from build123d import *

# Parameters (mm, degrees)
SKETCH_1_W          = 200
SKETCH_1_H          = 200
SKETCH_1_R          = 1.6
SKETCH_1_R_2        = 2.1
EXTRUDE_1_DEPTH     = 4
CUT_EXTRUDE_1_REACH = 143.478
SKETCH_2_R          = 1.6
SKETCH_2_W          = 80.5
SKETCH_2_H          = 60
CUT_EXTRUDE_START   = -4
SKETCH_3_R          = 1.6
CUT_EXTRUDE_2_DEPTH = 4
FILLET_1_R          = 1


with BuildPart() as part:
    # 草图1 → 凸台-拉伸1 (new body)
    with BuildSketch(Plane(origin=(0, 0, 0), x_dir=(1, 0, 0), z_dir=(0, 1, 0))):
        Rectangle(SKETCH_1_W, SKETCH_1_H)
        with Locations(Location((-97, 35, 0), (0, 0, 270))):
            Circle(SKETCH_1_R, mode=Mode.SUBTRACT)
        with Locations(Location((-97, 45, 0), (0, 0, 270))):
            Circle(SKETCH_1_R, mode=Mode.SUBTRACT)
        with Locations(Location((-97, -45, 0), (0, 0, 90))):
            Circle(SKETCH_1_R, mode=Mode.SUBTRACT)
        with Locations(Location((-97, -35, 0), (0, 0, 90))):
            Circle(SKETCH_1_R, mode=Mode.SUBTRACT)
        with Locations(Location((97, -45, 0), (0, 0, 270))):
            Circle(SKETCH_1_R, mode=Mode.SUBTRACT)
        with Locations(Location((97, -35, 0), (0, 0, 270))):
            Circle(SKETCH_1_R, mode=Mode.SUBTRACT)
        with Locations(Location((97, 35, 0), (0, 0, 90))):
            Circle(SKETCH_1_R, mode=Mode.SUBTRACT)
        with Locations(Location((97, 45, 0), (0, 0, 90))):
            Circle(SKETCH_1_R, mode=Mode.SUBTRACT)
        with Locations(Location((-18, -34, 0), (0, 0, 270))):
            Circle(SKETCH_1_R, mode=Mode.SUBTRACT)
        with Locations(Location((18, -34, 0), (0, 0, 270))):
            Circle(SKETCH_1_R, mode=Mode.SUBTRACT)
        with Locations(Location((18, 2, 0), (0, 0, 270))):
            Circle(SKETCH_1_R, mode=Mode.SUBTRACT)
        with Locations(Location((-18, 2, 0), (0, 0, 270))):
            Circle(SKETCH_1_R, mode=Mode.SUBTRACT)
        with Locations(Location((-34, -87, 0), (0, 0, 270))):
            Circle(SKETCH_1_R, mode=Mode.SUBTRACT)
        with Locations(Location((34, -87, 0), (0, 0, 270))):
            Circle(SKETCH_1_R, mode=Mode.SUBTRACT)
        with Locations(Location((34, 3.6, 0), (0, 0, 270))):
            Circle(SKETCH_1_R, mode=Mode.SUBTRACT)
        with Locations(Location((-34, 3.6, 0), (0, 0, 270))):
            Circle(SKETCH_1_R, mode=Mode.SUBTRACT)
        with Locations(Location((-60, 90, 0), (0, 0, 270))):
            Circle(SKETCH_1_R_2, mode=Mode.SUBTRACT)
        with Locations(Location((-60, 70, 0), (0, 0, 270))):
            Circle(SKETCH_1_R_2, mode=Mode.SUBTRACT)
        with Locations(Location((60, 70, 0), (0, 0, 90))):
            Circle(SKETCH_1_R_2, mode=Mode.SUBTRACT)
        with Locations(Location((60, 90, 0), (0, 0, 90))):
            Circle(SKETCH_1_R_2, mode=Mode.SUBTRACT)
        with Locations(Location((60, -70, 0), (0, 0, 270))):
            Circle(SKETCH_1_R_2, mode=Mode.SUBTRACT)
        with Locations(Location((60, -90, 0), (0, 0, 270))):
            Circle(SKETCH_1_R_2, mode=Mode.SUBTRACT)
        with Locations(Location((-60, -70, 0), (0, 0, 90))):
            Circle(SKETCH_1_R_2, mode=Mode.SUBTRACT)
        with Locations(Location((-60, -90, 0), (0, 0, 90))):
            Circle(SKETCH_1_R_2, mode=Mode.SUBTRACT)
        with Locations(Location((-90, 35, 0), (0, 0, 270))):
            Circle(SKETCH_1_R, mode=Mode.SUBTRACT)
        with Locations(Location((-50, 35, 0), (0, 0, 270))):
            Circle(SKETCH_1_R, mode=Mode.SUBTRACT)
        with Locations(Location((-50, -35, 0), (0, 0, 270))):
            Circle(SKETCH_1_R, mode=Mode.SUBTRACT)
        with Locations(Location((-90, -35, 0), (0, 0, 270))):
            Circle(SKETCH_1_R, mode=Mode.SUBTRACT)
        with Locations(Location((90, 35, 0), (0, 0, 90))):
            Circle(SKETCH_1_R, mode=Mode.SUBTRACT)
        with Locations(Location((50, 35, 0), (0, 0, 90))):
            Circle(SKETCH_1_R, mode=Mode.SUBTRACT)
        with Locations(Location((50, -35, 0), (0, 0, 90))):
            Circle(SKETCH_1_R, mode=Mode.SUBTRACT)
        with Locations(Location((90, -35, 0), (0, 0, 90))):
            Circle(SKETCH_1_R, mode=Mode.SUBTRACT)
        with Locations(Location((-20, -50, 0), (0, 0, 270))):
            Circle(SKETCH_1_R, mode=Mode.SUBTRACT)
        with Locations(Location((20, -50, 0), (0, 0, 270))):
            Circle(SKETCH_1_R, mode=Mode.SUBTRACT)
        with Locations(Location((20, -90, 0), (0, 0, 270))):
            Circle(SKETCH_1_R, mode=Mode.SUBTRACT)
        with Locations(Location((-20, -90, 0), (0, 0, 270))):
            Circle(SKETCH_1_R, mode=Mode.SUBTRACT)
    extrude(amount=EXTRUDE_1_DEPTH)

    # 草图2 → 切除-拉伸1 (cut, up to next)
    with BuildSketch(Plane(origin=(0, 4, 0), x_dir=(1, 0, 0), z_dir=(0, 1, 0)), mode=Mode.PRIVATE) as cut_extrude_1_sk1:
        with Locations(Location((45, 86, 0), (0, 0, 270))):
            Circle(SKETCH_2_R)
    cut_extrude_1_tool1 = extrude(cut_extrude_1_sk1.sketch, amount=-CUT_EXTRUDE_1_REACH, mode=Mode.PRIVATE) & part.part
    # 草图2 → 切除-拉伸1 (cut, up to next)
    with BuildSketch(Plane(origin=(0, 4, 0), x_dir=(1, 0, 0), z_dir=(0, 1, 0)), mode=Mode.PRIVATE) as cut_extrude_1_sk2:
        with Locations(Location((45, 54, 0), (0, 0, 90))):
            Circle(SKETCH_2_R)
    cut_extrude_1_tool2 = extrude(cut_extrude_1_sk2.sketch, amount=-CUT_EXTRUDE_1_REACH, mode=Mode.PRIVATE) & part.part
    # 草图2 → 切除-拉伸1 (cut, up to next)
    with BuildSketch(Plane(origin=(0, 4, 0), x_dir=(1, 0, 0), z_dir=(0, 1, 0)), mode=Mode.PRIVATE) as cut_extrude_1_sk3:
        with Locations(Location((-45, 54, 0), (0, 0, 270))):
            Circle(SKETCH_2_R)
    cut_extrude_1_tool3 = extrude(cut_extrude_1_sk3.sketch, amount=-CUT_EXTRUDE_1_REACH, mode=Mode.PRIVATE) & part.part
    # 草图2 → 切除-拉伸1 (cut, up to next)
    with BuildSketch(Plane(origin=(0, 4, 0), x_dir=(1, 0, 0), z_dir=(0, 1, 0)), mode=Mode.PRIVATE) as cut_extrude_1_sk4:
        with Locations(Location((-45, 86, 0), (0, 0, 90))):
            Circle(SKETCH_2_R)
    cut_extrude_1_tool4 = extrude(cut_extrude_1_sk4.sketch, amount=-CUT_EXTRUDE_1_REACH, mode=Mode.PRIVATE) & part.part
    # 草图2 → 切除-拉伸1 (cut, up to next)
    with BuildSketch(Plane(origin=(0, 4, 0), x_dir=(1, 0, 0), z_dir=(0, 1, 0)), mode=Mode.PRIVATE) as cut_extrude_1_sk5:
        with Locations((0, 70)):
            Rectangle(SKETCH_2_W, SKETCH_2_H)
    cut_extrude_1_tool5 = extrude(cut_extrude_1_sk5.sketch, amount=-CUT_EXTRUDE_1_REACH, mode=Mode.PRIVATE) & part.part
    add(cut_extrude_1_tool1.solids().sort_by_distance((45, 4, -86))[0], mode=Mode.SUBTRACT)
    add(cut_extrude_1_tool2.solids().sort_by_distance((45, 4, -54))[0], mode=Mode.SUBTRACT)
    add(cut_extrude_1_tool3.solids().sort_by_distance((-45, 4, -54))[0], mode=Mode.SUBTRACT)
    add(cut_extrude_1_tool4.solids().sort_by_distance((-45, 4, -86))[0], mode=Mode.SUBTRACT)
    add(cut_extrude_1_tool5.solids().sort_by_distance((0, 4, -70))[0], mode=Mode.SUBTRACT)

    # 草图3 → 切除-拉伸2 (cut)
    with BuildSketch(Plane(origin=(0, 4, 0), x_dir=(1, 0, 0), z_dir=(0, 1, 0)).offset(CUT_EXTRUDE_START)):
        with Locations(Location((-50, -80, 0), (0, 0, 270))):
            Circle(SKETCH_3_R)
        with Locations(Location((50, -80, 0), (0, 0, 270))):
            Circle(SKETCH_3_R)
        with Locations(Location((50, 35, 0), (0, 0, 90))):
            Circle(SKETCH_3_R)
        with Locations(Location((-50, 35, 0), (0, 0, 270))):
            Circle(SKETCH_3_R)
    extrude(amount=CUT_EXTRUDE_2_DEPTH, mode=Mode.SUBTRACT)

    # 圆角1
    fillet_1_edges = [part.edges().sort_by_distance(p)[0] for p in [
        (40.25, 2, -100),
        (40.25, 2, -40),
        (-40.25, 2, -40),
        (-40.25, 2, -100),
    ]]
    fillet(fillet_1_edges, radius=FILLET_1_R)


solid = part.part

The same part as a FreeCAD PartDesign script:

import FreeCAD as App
import Part
import Sketcher
Q = App.Units.Quantity


def edges_at(feature, points):
    """Names of the edges that pass closest to the given points."""
    edges = feature.Shape.Edges
    near = lambda p: min(range(len(edges)), key=lambda i: edges[i].distToShape(Part.Vertex(*p))[0])
    return sorted({f"Edge{near(p) + 1}" for p in points})


def add_polygon(sketch, points):
    """Adds a closed chain of lines whose ends are joined by coincident constraints."""
    first, n = sketch.GeometryCount, len(points)
    for a, b in zip(points, points[1:] + points[:1]):
        sketch.addGeometry(Part.LineSegment(App.Vector(*a, 0), App.Vector(*b, 0)), False)
    for i in range(n):
        sketch.addConstraint(Sketcher.Constraint("Coincident", first + i, 2, first + (i + 1) % n, 1))

doc = App.newDocument("Part")
params = doc.addObject("Spreadsheet::Sheet", "Params")
for row, (alias, value) in enumerate([
    ("sketch1_diameter", "4.2 mm"),
    ("sketch1_diameter2", "3.2 mm"),
    ("sketch1_width", "200 mm"),
    ("pad1_length", "4 mm"),
    ("sketch2_diameter", "3.2 mm"),
    ("sketch3_diameter", "3.2 mm"),
    ("sketch4_diameter", "3.2 mm"),
    ("sketch5_diameter", "3.2 mm"),
    ("sketch6_height", "60 mm"),
    ("sketch6_width", "80.5 mm"),
    ("sketch7_diameter", "3.2 mm"),
    ("pocket6_length", "4 mm"),
    ("fillet_radius", "1 mm"),
], start=1):
    params.set(f"A{row}", alias)
    params.set(f"B{row}", "=" + value)
    params.setAlias(f"B{row}", alias)

body = doc.addObject("PartDesign::Body", "Body")

# Sketch on XZ plane
sketch1 = doc.addObject("Sketcher::SketchObject", "Sketch")
body.addObject(sketch1)
sketch1.AttachmentSupport = (doc.XZ_Plane, [""])
sketch1.MapMode = "FlatFace"
add_polygon(sketch1, [(-100, -100), (-100, 100), (100, 100), (100, -100)])  # lines 0-3
sketch1.addGeometry(Part.Circle(App.Vector(-60, 90, 0), App.Vector(0, 0, 1), 2.1), False)  # 4
sketch1.addGeometry(Part.Circle(App.Vector(-60, 70, 0), App.Vector(0, 0, 1), 2.1), False)  # 5
sketch1.addGeometry(Part.Circle(App.Vector(-34, 87, 0), App.Vector(0, 0, 1), 1.6), False)  # 6
sketch1.addGeometry(Part.Circle(App.Vector(-20, 90, 0), App.Vector(0, 0, 1), 1.6), False)  # 7
sketch1.addGeometry(Part.Circle(App.Vector(-20, 50, 0), App.Vector(0, 0, 1), 1.6), False)  # 8
sketch1.addGeometry(Part.Circle(App.Vector(-97, 45, 0), App.Vector(0, 0, 1), 1.6), False)  # 9
sketch1.addGeometry(Part.Circle(App.Vector(-97, 35, 0), App.Vector(0, 0, 1), 1.6), False)  # 10
sketch1.addGeometry(Part.Circle(App.Vector(-90, 35, 0), App.Vector(0, 0, 1), 1.6), False)  # 11
sketch1.addGeometry(Part.Circle(App.Vector(-50, 35, 0), App.Vector(0, 0, 1), 1.6), False)  # 12
sketch1.addGeometry(Part.Circle(App.Vector(-18, 34, 0), App.Vector(0, 0, 1), 1.6), False)  # 13
sketch1.addGeometry(Part.Circle(App.Vector(20, 90, 0), App.Vector(0, 0, 1), 1.6), False)  # 14
sketch1.addGeometry(Part.Circle(App.Vector(34, 87, 0), App.Vector(0, 0, 1), 1.6), False)  # 15
sketch1.addGeometry(Part.Circle(App.Vector(20, 50, 0), App.Vector(0, 0, 1), 1.6), False)  # 16
sketch1.addGeometry(Part.Circle(App.Vector(60, 90, 0), App.Vector(0, 0, 1), 2.1), False)  # 17
sketch1.addGeometry(Part.Circle(App.Vector(60, 70, 0), App.Vector(0, 0, 1), 2.1), False)  # 18
sketch1.addGeometry(Part.Circle(App.Vector(18, 34, 0), App.Vector(0, 0, 1), 1.6), False)  # 19
sketch1.addGeometry(Part.Circle(App.Vector(50, 35, 0), App.Vector(0, 0, 1), 1.6), False)  # 20
sketch1.addGeometry(Part.Circle(App.Vector(97, 45, 0), App.Vector(0, 0, 1), 1.6), False)  # 21
sketch1.addGeometry(Part.Circle(App.Vector(90, 35, 0), App.Vector(0, 0, 1), 1.6), False)  # 22
sketch1.addGeometry(Part.Circle(App.Vector(97, 35, 0), App.Vector(0, 0, 1), 1.6), False)  # 23
sketch1.addGeometry(Part.Circle(App.Vector(-97, -35, 0), App.Vector(0, 0, 1), 1.6), False)  # 24
sketch1.addGeometry(Part.Circle(App.Vector(-90, -35, 0), App.Vector(0, 0, 1), 1.6), False)  # 25
sketch1.addGeometry(Part.Circle(App.Vector(-97, -45, 0), App.Vector(0, 0, 1), 1.6), False)  # 26
sketch1.addGeometry(Part.Circle(App.Vector(-50, -35, 0), App.Vector(0, 0, 1), 1.6), False)  # 27
sketch1.addGeometry(Part.Circle(App.Vector(-34, -3.6, 0), App.Vector(0, 0, 1), 1.6), False)  # 28
sketch1.addGeometry(Part.Circle(App.Vector(-18, -2, 0), App.Vector(0, 0, 1), 1.6), False)  # 29
sketch1.addGeometry(Part.Circle(App.Vector(-60, -70, 0), App.Vector(0, 0, 1), 2.1), False)  # 30
sketch1.addGeometry(Part.Circle(App.Vector(-60, -90, 0), App.Vector(0, 0, 1), 2.1), False)  # 31
sketch1.addGeometry(Part.Circle(App.Vector(18, -2, 0), App.Vector(0, 0, 1), 1.6), False)  # 32
sketch1.addGeometry(Part.Circle(App.Vector(34, -3.6, 0), App.Vector(0, 0, 1), 1.6), False)  # 33
sketch1.addGeometry(Part.Circle(App.Vector(50, -35, 0), App.Vector(0, 0, 1), 1.6), False)  # 34
sketch1.addGeometry(Part.Circle(App.Vector(90, -35, 0), App.Vector(0, 0, 1), 1.6), False)  # 35
sketch1.addGeometry(Part.Circle(App.Vector(97, -35, 0), App.Vector(0, 0, 1), 1.6), False)  # 36
sketch1.addGeometry(Part.Circle(App.Vector(97, -45, 0), App.Vector(0, 0, 1), 1.6), False)  # 37
sketch1.addGeometry(Part.Circle(App.Vector(60, -70, 0), App.Vector(0, 0, 1), 2.1), False)  # 38
sketch1.addGeometry(Part.Circle(App.Vector(60, -90, 0), App.Vector(0, 0, 1), 2.1), False)  # 39
sketch1.addConstraint([
    Sketcher.Constraint("Vertical", 0),
    Sketcher.Constraint("Horizontal", 1),
    Sketcher.Constraint("Vertical", 2),
    Sketcher.Constraint("Horizontal", 3),
    Sketcher.Constraint("Equal", 4, 5),
    Sketcher.Constraint("Equal", 6, 7),
    Sketcher.Constraint("Equal", 7, 8),
    Sketcher.Constraint("Equal", 8, 9),
    Sketcher.Constraint("Equal", 9, 10),
    Sketcher.Constraint("Equal", 10, 11),
    Sketcher.Constraint("Equal", 11, 12),
    Sketcher.Constraint("Equal", 12, 13),
    Sketcher.Constraint("Equal", 13, 14),
    Sketcher.Constraint("Equal", 14, 15),
    Sketcher.Constraint("Equal", 15, 16),
    Sketcher.Constraint("Equal", 5, 17),
    Sketcher.Constraint("Equal", 17, 18),
    Sketcher.Constraint("Equal", 16, 19),
    Sketcher.Constraint("Equal", 19, 20),
    Sketcher.Constraint("Equal", 20, 21),
    Sketcher.Constraint("Equal", 21, 22),
    Sketcher.Constraint("Equal", 22, 23),
    Sketcher.Constraint("Equal", 23, 24),
    Sketcher.Constraint("Equal", 24, 25),
    Sketcher.Constraint("Equal", 25, 26),
    Sketcher.Constraint("Equal", 26, 27),
    Sketcher.Constraint("Equal", 27, 28),
    Sketcher.Constraint("Equal", 28, 29),
    Sketcher.Constraint("Equal", 18, 30),
    Sketcher.Constraint("Equal", 30, 31),
    Sketcher.Constraint("Equal", 29, 32),
    Sketcher.Constraint("Equal", 32, 33),
    Sketcher.Constraint("Equal", 33, 34),
    Sketcher.Constraint("Equal", 34, 35),
    Sketcher.Constraint("Equal", 35, 36),
    Sketcher.Constraint("Equal", 36, 37),
    Sketcher.Constraint("Equal", 31, 38),
    Sketcher.Constraint("Equal", 38, 39),
    Sketcher.Constraint("Symmetric", 23, 3, 24, 3, -1, 1),
    Sketcher.Constraint("Symmetric", 22, 3, 25, 3, -1, 1),
    Sketcher.Constraint("Symmetric", 21, 3, 26, 3, -1, 1),
    Sketcher.Constraint("Symmetric", 20, 3, 27, 3, -1, 1),
    Sketcher.Constraint("Symmetric", 18, 3, 30, 3, -1, 1),
    Sketcher.Constraint("Symmetric", 17, 3, 31, 3, -1, 1),
    Sketcher.Constraint("Symmetric", 12, 3, 34, 3, -1, 1),
    Sketcher.Constraint("Symmetric", 11, 3, 35, 3, -1, 1),
    Sketcher.Constraint("Symmetric", 10, 3, 36, 3, -1, 1),
    Sketcher.Constraint("Symmetric", 9, 3, 37, 3, -1, 1),
    Sketcher.Constraint("Symmetric", 5, 3, 38, 3, -1, 1),
    Sketcher.Constraint("Symmetric", 4, 3, 39, 3, -1, 1),
    Sketcher.Constraint("Symmetric", 0, 2, 2, 2, -1, 1),
    Sketcher.Constraint("Symmetric", 7, 3, 14, 3, -2),
    Sketcher.Constraint("Symmetric", 6, 3, 15, 3, -2),
    Sketcher.Constraint("Symmetric", 8, 3, 16, 3, -2),
    Sketcher.Constraint("Symmetric", 4, 3, 17, 3, -2),
    Sketcher.Constraint("Symmetric", 5, 3, 18, 3, -2),
    Sketcher.Constraint("Symmetric", 13, 3, 19, 3, -2),
    Sketcher.Constraint("Symmetric", 12, 3, 20, 3, -2),
    Sketcher.Constraint("Symmetric", 9, 3, 21, 3, -2),
    Sketcher.Constraint("Symmetric", 11, 3, 22, 3, -2),
    Sketcher.Constraint("Symmetric", 10, 3, 23, 3, -2),
    Sketcher.Constraint("Symmetric", 29, 3, 32, 3, -2),
    Sketcher.Constraint("Symmetric", 28, 3, 33, 3, -2),
    Sketcher.Constraint("Horizontal", 4, 3, 7, 3),
    Sketcher.Constraint("Horizontal", 10, 3, 11, 3),
    Sketcher.Constraint("Horizontal", 11, 3, 12, 3),
    Sketcher.Constraint("Vertical", 4, 3, 5, 3),
    Sketcher.Constraint("Vertical", 7, 3, 8, 3),
    Sketcher.Constraint("Vertical", 9, 3, 10, 3),
    Sketcher.Constraint("Vertical", 6, 3, 28, 3),
    Sketcher.Constraint("Vertical", 13, 3, 29, 3),
    Sketcher.Constraint("Equal", 3, 0),
    Sketcher.Constraint("Diameter", 4, Q("4.2 mm")),
    Sketcher.Constraint("Diameter", 6, Q("3.2 mm")),
    Sketcher.Constraint("DistanceX", 1, 1, 1, 2, Q("200 mm")),
    Sketcher.Constraint("DistanceX", 4, 3, -1, 1, Q("60 mm")),
    Sketcher.Constraint("DistanceY", -1, 1, 4, 3, Q("90 mm")),
    Sketcher.Constraint("DistanceY", -1, 1, 5, 3, Q("70 mm")),
    Sketcher.Constraint("DistanceX", 6, 3, -1, 1, Q("34 mm")),
    Sketcher.Constraint("DistanceY", -1, 1, 6, 3, Q("87 mm")),
    Sketcher.Constraint("DistanceX", 7, 3, -1, 1, Q("20 mm")),
    Sketcher.Constraint("DistanceY", -1, 1, 8, 3, Q("50 mm")),
    Sketcher.Constraint("DistanceX", 9, 3, -1, 1, Q("97 mm")),
    Sketcher.Constraint("DistanceY", -1, 1, 9, 3, Q("45 mm")),
    Sketcher.Constraint("DistanceY", -1, 1, 10, 3, Q("35 mm")),
    Sketcher.Constraint("DistanceX", 11, 3, -1, 1, Q("90 mm")),
    Sketcher.Constraint("DistanceX", 12, 3, -1, 1, Q("50 mm")),
    Sketcher.Constraint("DistanceX", 13, 3, -1, 1, Q("18 mm")),
    Sketcher.Constraint("DistanceY", -1, 1, 13, 3, Q("34 mm")),
    Sketcher.Constraint("DistanceY", 29, 3, -1, 1, Q("2 mm")),
    Sketcher.Constraint("DistanceY", 28, 3, -1, 1, Q("3.6 mm")),
])
sketch1.setExpression("Constraints[76]", "Params.sketch1_diameter")
sketch1.setExpression("Constraints[77]", "Params.sketch1_diameter2")
sketch1.setExpression("Constraints[78]", "Params.sketch1_width")
pad1 = doc.addObject("PartDesign::Pad", "Pad")
body.addObject(pad1)
pad1.Profile = sketch1
pad1.setExpression("Length", "Params.pad1_length")
pad1.Reversed = True

# Sketch on XZ plane
sketch2 = doc.addObject("Sketcher::SketchObject", "Sketch001")
body.addObject(sketch2)
sketch2.AttachmentSupport = (doc.XZ_Plane, [""])
sketch2.MapMode = "FlatFace"
sketch2.AttachmentOffset = App.Placement(App.Vector(0, 0, -4), App.Rotation())
sketch2.addGeometry(Part.Circle(App.Vector(45, -86, 0), App.Vector(0, 0, 1), 1.6), False)
sketch2.addConstraint([
    Sketcher.Constraint("Diameter", 0, Q("3.2 mm")),
    Sketcher.Constraint("DistanceX", -1, 1, 0, 3, Q("45 mm")),
    Sketcher.Constraint("DistanceY", 0, 3, -1, 1, Q("86 mm")),
])
sketch2.setExpression("Constraints[0]", "Params.sketch2_diameter")
pocket1 = doc.addObject("PartDesign::Pocket", "Pocket")
body.addObject(pocket1)
pocket1.Profile = sketch2
pocket1.Type = "UpToFirst"
pocket1.Reversed = True

# Sketch on XZ plane
sketch3 = doc.addObject("Sketcher::SketchObject", "Sketch002")
body.addObject(sketch3)
sketch3.AttachmentSupport = (doc.XZ_Plane, [""])
sketch3.MapMode = "FlatFace"
sketch3.AttachmentOffset = App.Placement(App.Vector(0, 0, -4), App.Rotation())
sketch3.addGeometry(Part.Circle(App.Vector(45, -54, 0), App.Vector(0, 0, 1), 1.6), False)
sketch3.addConstraint([
    Sketcher.Constraint("Diameter", 0, Q("3.2 mm")),
    Sketcher.Constraint("DistanceX", -1, 1, 0, 3, Q("45 mm")),
    Sketcher.Constraint("DistanceY", 0, 3, -1, 1, Q("54 mm")),
])
sketch3.setExpression("Constraints[0]", "Params.sketch3_diameter")
pocket2 = doc.addObject("PartDesign::Pocket", "Pocket001")
body.addObject(pocket2)
pocket2.Profile = sketch3
pocket2.Type = "UpToFirst"
pocket2.Reversed = True

# Sketch on XZ plane
sketch4 = doc.addObject("Sketcher::SketchObject", "Sketch003")
body.addObject(sketch4)
sketch4.AttachmentSupport = (doc.XZ_Plane, [""])
sketch4.MapMode = "FlatFace"
sketch4.AttachmentOffset = App.Placement(App.Vector(0, 0, -4), App.Rotation())
sketch4.addGeometry(Part.Circle(App.Vector(-45, -54, 0), App.Vector(0, 0, 1), 1.6), False)
sketch4.addConstraint([
    Sketcher.Constraint("Diameter", 0, Q("3.2 mm")),
    Sketcher.Constraint("DistanceX", 0, 3, -1, 1, Q("45 mm")),
    Sketcher.Constraint("DistanceY", 0, 3, -1, 1, Q("54 mm")),
])
sketch4.setExpression("Constraints[0]", "Params.sketch4_diameter")
pocket3 = doc.addObject("PartDesign::Pocket", "Pocket002")
body.addObject(pocket3)
pocket3.Profile = sketch4
pocket3.Type = "UpToFirst"
pocket3.Reversed = True

# Sketch on XZ plane
sketch5 = doc.addObject("Sketcher::SketchObject", "Sketch004")
body.addObject(sketch5)
sketch5.AttachmentSupport = (doc.XZ_Plane, [""])
sketch5.MapMode = "FlatFace"
sketch5.AttachmentOffset = App.Placement(App.Vector(0, 0, -4), App.Rotation())
sketch5.addGeometry(Part.Circle(App.Vector(-45, -86, 0), App.Vector(0, 0, 1), 1.6), False)
sketch5.addConstraint([
    Sketcher.Constraint("Diameter", 0, Q("3.2 mm")),
    Sketcher.Constraint("DistanceX", 0, 3, -1, 1, Q("45 mm")),
    Sketcher.Constraint("DistanceY", 0, 3, -1, 1, Q("86 mm")),
])
sketch5.setExpression("Constraints[0]", "Params.sketch5_diameter")
pocket4 = doc.addObject("PartDesign::Pocket", "Pocket003")
body.addObject(pocket4)
pocket4.Profile = sketch5
pocket4.Type = "UpToFirst"
pocket4.Reversed = True

# Sketch on XZ plane
sketch6 = doc.addObject("Sketcher::SketchObject", "Sketch005")
body.addObject(sketch6)
sketch6.AttachmentSupport = (doc.XZ_Plane, [""])
sketch6.MapMode = "FlatFace"
sketch6.AttachmentOffset = App.Placement(App.Vector(0, 0, -4), App.Rotation())
add_polygon(sketch6, [(-40.25, -100), (-40.25, -40), (40.25, -40), (40.25, -100)])  # lines 0-3
sketch6.addConstraint([
    Sketcher.Constraint("Vertical", 0),
    Sketcher.Constraint("Horizontal", 1),
    Sketcher.Constraint("Vertical", 2),
    Sketcher.Constraint("Horizontal", 3),
    Sketcher.Constraint("DistanceY", 0, 1, 0, 2, Q("60 mm")),
    Sketcher.Constraint("DistanceX", 1, 1, 1, 2, Q("80.5 mm")),
    Sketcher.Constraint("DistanceY", 0, 2, -1, 1, Q("40 mm")),
    Sketcher.Constraint("DistanceX", 0, 2, -1, 1, Q("40.25 mm")),
])
sketch6.setExpression("Constraints[8]", "Params.sketch6_height")
sketch6.setExpression("Constraints[9]", "Params.sketch6_width")
pocket5 = doc.addObject("PartDesign::Pocket", "Pocket004")
body.addObject(pocket5)
pocket5.Profile = sketch6
pocket5.Type = "UpToFirst"
pocket5.Reversed = True

# Sketch on XZ plane
sketch7 = doc.addObject("Sketcher::SketchObject", "Sketch006")
body.addObject(sketch7)
sketch7.AttachmentSupport = (doc.XZ_Plane, [""])
sketch7.MapMode = "FlatFace"
sketch7.addGeometry([
    Part.Circle(App.Vector(-50, 80, 0), App.Vector(0, 0, 1), 1.6),
    Part.Circle(App.Vector(50, 80, 0), App.Vector(0, 0, 1), 1.6),
    Part.Circle(App.Vector(50, -35, 0), App.Vector(0, 0, 1), 1.6),
    Part.Circle(App.Vector(-50, -35, 0), App.Vector(0, 0, 1), 1.6),
], False)
sketch7.addConstraint([
    Sketcher.Constraint("Equal", 0, 1),
    Sketcher.Constraint("Equal", 1, 2),
    Sketcher.Constraint("Equal", 2, 3),
    Sketcher.Constraint("Symmetric", 0, 3, 1, 3, -2),
    Sketcher.Constraint("Symmetric", 2, 3, 3, 3, -2),
    Sketcher.Constraint("Vertical", 1, 3, 2, 3),
    Sketcher.Constraint("Diameter", 0, Q("3.2 mm")),
    Sketcher.Constraint("DistanceX", 0, 3, -1, 1, Q("50 mm")),
    Sketcher.Constraint("DistanceY", -1, 1, 0, 3, Q("80 mm")),
    Sketcher.Constraint("DistanceY", 2, 3, -1, 1, Q("35 mm")),
])
sketch7.setExpression("Constraints[6]", "Params.sketch7_diameter")
pocket6 = doc.addObject("PartDesign::Pocket", "Pocket005")
body.addObject(pocket6)
pocket6.Profile = sketch7
pocket6.setExpression("Length", "Params.pocket6_length")
doc.recompute()

fillet = doc.addObject("PartDesign::Fillet", "Fillet")
body.addObject(fillet)
fillet.Base = (pocket6, edges_at(pocket6, [
    (40.25, 2, -100),
    (40.25, 2, -40),
    (-40.25, 2, -40),
    (-40.25, 2, -100),
]))
fillet.setExpression("Radius", "Params.fillet_radius")

doc.recompute()
